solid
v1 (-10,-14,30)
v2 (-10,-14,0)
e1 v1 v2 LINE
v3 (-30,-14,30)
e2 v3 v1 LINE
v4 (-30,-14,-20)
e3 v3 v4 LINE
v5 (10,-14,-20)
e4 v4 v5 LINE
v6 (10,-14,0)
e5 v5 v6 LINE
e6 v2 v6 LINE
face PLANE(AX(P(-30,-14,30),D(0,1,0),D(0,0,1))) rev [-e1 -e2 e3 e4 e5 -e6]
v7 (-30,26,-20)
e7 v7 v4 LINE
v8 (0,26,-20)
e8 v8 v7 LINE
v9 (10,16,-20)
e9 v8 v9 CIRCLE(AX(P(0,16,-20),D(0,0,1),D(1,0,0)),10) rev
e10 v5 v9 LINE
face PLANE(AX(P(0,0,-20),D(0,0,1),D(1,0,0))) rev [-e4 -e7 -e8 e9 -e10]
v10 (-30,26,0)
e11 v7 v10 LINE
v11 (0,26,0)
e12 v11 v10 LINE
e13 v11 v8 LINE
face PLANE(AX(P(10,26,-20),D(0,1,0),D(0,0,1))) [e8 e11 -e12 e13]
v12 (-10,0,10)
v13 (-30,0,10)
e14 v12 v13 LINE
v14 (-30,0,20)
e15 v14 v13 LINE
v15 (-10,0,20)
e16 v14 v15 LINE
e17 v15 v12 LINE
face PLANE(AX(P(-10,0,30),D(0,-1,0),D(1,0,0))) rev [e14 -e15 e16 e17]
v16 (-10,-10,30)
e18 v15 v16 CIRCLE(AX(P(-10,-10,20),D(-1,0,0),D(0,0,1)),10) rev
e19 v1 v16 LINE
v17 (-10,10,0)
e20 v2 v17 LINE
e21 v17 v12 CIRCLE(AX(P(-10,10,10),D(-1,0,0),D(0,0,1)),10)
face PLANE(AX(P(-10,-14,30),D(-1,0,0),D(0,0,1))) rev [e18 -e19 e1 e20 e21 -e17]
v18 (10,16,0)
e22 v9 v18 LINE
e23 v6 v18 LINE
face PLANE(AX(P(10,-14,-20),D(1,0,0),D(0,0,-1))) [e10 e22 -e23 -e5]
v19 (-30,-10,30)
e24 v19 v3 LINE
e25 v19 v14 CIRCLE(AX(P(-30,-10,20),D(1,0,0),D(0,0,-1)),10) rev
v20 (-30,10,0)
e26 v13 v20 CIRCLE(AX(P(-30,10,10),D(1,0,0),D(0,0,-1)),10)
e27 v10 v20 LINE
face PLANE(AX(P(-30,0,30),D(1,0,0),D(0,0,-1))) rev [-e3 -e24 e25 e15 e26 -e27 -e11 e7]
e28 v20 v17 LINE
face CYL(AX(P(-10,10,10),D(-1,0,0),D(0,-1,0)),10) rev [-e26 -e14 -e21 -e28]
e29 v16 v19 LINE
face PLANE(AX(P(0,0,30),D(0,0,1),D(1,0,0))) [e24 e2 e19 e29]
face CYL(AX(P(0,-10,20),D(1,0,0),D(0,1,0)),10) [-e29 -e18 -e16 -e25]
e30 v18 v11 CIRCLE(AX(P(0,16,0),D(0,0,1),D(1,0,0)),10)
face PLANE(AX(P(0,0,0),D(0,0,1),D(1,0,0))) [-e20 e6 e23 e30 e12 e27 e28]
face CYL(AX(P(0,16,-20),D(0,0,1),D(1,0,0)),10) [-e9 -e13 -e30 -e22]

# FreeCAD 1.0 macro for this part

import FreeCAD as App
import Part
import Sketcher


def edges_at(feature, points):
    """Names of the edges that pass closest to the given points."""
    edges = feature.Shape.Edges
    near = lambda p: min(range(len(edges)), key=lambda i: edges[i].distToShape(Part.Vertex(*p))[0])
    return sorted({f"Edge{near(p) + 1}" for p in points})


def add_polygon(sketch, points):
    """Adds a closed chain of lines whose ends are joined by coincident constraints."""
    first, n = sketch.GeometryCount, len(points)
    for a, b in zip(points, points[1:] + points[:1]):
        sketch.addGeometry(Part.LineSegment(App.Vector(*a, 0), App.Vector(*b, 0)), False)
    for i in range(n):
        sketch.addConstraint(Sketcher.Constraint("Coincident", first + i, 2, first + (i + 1) % n, 1))

doc = App.newDocument("Part")
body = doc.addObject("PartDesign::Body", "Body")

sketch1 = body.newObject("Sketcher::SketchObject", "Sketch")
sketch1.AttachmentSupport = (doc.getObject("XY_Plane"), [""])
sketch1.MapMode = "FlatFace"
add_polygon(sketch1, [(-30, 0), (-30, -14), (-10, -14), (-10, 0)])
sketch1.addConstraint([
    Sketcher.Constraint("Vertical", 0),
    Sketcher.Constraint("Horizontal", 1),
    Sketcher.Constraint("Vertical", 2),
    Sketcher.Constraint("Horizontal", 3),
    Sketcher.Constraint("PointOnObject", 2, 2, -1),
    Sketcher.Constraint("DistanceX", 1, 1, 1, 2, 20.0),
    Sketcher.Constraint("DistanceY", 0, 2, 0, 1, 14.0),
    Sketcher.Constraint("DistanceX", 0, 2, -1, 1, 30.0),
])
pad1 = body.newObject("PartDesign::Pad", "Pad")
pad1.Profile = sketch1
pad1.Length = 30

sketch2 = body.newObject("Sketcher::SketchObject", "Sketch001")
sketch2.AttachmentSupport = (doc.getObject("XY_Plane"), [""])
sketch2.MapMode = "FlatFace"
add_polygon(sketch2, [(-30, 26), (-30, -14), (10, -14), (10, 26)])
sketch2.addConstraint([
    Sketcher.Constraint("Vertical", 0),
    Sketcher.Constraint("Horizontal", 1),
    Sketcher.Constraint("Vertical", 2),
    Sketcher.Constraint("Horizontal", 3),
    Sketcher.Constraint("Equal", 3, 0),
    Sketcher.Constraint("DistanceX", 1, 1, 1, 2, 40.0),
    Sketcher.Constraint("DistanceX", 0, 2, -1, 1, 30.0),
    Sketcher.Constraint("DistanceY", 0, 2, -1, 1, 14.0),
])
pad2 = body.newObject("PartDesign::Pad", "Pad001")
pad2.Profile = sketch2
pad2.Length = 20
pad2.Reversed = True
doc.recompute()

fillet = body.newObject("PartDesign::Fillet", "Fillet")
fillet.Base = (pad2, edges_at(pad2, [(10, 26, -10), (-20, 0, 30), (-20, 0, 0)]))
fillet.Radius = 10

doc.recompute()
